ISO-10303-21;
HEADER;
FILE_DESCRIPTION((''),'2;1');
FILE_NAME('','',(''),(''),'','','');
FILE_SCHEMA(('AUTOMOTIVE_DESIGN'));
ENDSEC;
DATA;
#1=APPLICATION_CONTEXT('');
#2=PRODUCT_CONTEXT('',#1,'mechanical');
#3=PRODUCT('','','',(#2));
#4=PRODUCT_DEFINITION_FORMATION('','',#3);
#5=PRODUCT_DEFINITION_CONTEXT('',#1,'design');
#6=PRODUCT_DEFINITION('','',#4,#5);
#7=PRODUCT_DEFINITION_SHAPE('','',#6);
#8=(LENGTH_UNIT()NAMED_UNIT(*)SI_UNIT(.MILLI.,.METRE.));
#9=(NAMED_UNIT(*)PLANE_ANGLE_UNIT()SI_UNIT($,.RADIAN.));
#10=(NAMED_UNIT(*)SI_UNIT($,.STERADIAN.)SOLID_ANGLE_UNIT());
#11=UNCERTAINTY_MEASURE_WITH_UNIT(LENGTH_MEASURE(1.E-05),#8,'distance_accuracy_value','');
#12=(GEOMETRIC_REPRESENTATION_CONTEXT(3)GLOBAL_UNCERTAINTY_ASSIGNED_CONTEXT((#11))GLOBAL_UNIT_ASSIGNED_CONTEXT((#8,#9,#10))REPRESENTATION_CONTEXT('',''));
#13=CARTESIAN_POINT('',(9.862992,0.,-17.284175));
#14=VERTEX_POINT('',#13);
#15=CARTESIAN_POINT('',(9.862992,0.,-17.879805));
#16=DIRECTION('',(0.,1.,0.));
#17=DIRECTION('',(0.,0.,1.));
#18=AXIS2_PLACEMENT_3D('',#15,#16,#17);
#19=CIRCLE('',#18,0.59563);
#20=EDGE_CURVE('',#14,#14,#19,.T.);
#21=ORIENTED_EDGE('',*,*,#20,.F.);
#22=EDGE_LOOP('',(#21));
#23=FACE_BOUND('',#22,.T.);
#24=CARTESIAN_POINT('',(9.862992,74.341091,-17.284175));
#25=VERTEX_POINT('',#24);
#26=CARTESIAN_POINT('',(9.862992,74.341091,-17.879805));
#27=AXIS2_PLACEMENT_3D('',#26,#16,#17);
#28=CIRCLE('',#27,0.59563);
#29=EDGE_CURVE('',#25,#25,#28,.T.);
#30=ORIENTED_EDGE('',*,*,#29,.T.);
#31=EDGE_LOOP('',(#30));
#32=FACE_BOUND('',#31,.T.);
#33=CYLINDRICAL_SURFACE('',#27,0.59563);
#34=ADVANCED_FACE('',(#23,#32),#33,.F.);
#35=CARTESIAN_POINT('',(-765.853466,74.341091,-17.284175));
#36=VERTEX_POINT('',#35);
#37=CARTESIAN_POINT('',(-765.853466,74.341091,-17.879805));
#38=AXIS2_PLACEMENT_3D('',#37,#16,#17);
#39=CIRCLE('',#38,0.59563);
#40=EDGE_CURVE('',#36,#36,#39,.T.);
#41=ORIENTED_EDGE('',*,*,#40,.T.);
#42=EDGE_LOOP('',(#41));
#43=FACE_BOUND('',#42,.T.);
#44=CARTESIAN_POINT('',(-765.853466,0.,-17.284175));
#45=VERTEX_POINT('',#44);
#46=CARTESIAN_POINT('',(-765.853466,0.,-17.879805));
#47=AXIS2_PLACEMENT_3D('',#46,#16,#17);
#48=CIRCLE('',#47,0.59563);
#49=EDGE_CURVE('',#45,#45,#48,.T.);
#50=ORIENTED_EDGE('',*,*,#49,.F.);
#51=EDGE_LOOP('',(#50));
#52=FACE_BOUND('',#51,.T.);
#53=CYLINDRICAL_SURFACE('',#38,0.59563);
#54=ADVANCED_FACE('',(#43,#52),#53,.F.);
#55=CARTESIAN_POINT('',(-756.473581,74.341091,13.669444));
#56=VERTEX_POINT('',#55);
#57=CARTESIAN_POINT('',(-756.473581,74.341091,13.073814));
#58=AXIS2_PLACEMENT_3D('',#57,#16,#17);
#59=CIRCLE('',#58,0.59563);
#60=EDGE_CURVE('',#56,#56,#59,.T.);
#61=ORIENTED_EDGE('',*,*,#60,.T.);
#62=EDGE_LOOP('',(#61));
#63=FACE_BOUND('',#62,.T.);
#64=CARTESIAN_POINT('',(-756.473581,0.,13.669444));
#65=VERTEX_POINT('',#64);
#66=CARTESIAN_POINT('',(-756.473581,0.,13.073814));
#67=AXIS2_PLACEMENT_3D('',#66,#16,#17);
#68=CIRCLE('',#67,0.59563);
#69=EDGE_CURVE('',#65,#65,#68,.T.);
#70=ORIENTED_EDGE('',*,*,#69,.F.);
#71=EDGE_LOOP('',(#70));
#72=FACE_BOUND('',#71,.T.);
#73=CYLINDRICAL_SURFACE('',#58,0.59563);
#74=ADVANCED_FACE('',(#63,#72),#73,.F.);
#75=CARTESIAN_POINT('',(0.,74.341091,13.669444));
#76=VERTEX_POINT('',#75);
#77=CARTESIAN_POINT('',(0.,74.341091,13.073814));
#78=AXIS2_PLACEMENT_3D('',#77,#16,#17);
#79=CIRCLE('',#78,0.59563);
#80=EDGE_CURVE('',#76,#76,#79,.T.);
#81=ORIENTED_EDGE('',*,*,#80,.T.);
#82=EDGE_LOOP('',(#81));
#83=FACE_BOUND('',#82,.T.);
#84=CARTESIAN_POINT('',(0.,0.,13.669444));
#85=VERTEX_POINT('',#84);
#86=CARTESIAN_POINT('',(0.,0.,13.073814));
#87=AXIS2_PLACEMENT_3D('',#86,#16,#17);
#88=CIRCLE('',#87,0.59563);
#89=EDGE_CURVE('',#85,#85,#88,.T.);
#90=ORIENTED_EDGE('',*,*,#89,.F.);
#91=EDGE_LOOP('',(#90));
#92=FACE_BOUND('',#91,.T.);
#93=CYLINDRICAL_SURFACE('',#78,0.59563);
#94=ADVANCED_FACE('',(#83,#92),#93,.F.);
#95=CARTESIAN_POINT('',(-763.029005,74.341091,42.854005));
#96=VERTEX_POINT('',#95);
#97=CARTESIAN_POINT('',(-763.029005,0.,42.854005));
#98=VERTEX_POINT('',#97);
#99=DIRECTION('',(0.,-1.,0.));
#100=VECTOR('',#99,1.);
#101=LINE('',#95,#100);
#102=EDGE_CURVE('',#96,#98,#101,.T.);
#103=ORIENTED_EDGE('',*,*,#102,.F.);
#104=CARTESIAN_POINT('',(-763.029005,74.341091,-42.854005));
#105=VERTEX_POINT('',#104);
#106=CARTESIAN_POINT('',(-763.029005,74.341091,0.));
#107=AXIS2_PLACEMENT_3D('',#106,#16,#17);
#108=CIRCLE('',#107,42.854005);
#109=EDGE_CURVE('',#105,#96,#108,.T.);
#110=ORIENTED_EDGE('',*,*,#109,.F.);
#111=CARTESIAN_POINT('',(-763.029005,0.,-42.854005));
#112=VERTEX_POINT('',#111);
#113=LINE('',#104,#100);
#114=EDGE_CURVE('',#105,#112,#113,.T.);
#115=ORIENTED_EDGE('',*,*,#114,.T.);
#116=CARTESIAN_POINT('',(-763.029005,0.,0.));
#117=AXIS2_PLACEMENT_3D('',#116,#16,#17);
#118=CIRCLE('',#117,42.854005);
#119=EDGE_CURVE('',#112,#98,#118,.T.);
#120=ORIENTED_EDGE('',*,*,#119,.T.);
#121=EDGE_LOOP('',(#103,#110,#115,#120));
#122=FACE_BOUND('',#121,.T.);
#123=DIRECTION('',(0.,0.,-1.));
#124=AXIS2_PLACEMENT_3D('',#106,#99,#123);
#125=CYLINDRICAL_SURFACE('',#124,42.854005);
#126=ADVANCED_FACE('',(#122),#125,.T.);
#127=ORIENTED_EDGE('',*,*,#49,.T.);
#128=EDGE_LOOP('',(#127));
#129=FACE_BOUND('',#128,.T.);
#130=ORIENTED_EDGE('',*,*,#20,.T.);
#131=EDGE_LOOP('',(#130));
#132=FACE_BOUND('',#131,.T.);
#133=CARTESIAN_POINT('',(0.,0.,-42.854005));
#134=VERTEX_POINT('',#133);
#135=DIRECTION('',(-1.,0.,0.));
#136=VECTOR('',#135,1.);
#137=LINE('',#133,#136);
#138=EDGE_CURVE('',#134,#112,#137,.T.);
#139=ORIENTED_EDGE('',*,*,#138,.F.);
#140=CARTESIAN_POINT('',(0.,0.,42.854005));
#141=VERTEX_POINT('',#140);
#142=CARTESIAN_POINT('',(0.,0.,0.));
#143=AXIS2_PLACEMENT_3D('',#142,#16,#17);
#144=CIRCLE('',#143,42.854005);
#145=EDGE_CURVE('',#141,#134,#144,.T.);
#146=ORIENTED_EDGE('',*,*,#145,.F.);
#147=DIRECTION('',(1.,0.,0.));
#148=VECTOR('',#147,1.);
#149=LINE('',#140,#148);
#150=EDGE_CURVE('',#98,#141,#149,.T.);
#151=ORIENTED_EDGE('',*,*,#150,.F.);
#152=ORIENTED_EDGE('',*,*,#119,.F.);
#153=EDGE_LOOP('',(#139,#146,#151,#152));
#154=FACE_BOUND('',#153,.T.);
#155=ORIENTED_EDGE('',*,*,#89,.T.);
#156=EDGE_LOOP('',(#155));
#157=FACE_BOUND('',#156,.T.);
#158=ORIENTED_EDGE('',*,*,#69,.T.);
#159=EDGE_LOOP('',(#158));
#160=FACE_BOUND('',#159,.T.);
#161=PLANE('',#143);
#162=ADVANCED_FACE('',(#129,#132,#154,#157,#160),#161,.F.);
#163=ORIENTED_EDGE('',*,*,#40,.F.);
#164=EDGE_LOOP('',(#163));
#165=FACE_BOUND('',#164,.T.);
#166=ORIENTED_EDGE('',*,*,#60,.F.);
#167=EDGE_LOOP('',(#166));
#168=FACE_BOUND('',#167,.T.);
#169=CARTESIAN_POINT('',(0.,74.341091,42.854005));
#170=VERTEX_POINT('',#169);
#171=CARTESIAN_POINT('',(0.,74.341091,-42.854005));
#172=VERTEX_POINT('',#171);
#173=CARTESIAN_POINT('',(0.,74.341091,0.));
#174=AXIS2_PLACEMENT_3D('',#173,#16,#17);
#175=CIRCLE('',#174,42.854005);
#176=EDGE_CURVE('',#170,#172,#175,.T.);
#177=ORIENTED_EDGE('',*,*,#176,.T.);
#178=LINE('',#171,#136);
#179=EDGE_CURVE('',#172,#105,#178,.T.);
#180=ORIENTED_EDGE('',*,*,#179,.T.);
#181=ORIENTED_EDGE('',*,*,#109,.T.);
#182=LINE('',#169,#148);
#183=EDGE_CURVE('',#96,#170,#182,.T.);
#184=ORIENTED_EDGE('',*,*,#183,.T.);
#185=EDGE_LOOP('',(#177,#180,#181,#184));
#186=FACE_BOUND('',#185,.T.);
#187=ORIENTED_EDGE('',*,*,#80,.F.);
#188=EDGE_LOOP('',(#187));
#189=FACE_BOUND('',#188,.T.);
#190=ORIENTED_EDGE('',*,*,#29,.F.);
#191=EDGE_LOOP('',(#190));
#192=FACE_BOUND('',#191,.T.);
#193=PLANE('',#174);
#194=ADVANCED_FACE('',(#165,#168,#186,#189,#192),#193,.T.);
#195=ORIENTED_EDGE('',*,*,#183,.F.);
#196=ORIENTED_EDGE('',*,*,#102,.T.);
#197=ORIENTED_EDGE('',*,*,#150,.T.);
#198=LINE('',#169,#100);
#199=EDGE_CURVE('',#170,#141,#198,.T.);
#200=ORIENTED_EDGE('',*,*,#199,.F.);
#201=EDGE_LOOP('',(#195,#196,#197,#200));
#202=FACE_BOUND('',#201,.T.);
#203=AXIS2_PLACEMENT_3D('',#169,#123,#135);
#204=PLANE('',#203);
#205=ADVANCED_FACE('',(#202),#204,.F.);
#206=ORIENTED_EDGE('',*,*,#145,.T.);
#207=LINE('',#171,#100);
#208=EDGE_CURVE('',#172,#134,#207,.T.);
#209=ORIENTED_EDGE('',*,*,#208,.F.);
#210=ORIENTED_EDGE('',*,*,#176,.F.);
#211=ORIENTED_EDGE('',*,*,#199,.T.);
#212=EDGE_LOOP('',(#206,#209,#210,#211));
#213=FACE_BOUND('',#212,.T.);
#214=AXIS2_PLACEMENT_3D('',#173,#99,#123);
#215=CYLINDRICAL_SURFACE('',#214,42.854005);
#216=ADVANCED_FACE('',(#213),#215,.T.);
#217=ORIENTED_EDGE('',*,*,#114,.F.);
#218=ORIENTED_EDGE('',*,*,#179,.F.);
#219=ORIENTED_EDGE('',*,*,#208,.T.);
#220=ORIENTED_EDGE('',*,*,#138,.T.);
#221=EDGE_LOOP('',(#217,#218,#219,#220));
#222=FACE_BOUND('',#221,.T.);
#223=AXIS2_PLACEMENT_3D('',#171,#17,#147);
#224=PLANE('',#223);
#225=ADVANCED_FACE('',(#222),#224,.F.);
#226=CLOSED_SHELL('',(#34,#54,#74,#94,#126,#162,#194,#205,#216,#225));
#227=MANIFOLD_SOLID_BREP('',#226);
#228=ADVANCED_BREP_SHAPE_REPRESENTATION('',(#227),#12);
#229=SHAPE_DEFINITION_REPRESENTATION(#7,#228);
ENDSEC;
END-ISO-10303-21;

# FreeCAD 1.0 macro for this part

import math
import FreeCAD as App
import Part
import Sketcher

V = App.Vector

doc = App.newDocument("Part")
body = doc.addObject("PartDesign::Body", "Body")

# Sketch on XZ plane
sketch1 = body.newObject("Sketcher::SketchObject", "Sketch")
sketch1.AttachmentSupport = (doc.getObject("XZ_Plane"), [""])
sketch1.MapMode = "FlatFace"
sketch1.addGeometry([
    Part.LineSegment(V(-763, 43, 0), V(0, 43, 0)),
    Part.ArcOfCircle(Part.Circle(V(0, 0, 0), V(0, 0, 1), 43), math.radians(-90), math.radians(90)),
    Part.LineSegment(V(0, -43, 0), V(-763, -43, 0)),
    Part.ArcOfCircle(Part.Circle(V(-763, 0, 0), V(0, 0, 1), 43), math.radians(90), math.radians(270)),
], False)
sketch1.addConstraint([
    Sketcher.Constraint("Tangent", 0, 2, 1, 2),
    Sketcher.Constraint("Tangent", 1, 1, 2, 1),
    Sketcher.Constraint("Tangent", 2, 2, 3, 2),
    Sketcher.Constraint("Tangent", 3, 1, 0, 1),
    Sketcher.Constraint("Horizontal", 0),
    Sketcher.Constraint("Horizontal", 2),
    Sketcher.Constraint("Coincident", 1, 3, -1, 1),
    Sketcher.Constraint("Radius", 1, 42.854005),
    Sketcher.Constraint("DistanceX", 0, 1, 0, 2, 763.029005),
])
pad1 = body.newObject("PartDesign::Pad", "Pad")
pad1.Profile = sketch1
pad1.Length = 74.341091
pad1.Reversed = True

# Sketch on XZ plane
sketch2 = body.newObject("Sketcher::SketchObject", "Sketch001")
sketch2.AttachmentSupport = (doc.getObject("XZ_Plane"), [""])
sketch2.MapMode = "FlatFace"
sketch2.AttachmentOffset = App.Placement(V(0, 0, -74.341091), App.Rotation())
sketch2.addGeometry([
    Part.Circle(V(9.9, -17.9, 0), V(0, 0, 1), 0.6),
    Part.Circle(V(0, 13.1, 0), V(0, 0, 1), 0.6),
    Part.Circle(V(-765.9, -17.9, 0), V(0, 0, 1), 0.6),
    Part.Circle(V(-756.5, 13.1, 0), V(0, 0, 1), 0.6),
], False)
sketch2.addConstraint([
    Sketcher.Constraint("Equal", 0, 1),
    Sketcher.Constraint("Equal", 1, 2),
    Sketcher.Constraint("Equal", 2, 3),
    Sketcher.Constraint("PointOnObject", 1, 3, -2),
    Sketcher.Constraint("Horizontal", 0, 3, 2, 3),
    Sketcher.Constraint("Horizontal", 1, 3, 3, 3),
    Sketcher.Constraint("Diameter", 0, 1.19126),
    Sketcher.Constraint("DistanceX", -1, 1, 0, 3, 9.862992),
    Sketcher.Constraint("DistanceX", 3, 3, -1, 1, 756.473581),
    Sketcher.Constraint("DistanceY", 0, 3, 1, 3, 30.953619),
    Sketcher.Constraint("DistanceY", 0, 3, -1, 1, 17.879805),
    Sketcher.Constraint("DistanceX", 2, 3, -1, 1, 765.853466),
])
doc.recompute()
hole = body.newObject("PartDesign::Hole", "Hole")
hole.Profile = sketch2
hole.ThreadType = "None"
hole.Diameter = 1.19126
hole.DepthType = "ThroughAll"
hole.Reversed = True

doc.recompute()
